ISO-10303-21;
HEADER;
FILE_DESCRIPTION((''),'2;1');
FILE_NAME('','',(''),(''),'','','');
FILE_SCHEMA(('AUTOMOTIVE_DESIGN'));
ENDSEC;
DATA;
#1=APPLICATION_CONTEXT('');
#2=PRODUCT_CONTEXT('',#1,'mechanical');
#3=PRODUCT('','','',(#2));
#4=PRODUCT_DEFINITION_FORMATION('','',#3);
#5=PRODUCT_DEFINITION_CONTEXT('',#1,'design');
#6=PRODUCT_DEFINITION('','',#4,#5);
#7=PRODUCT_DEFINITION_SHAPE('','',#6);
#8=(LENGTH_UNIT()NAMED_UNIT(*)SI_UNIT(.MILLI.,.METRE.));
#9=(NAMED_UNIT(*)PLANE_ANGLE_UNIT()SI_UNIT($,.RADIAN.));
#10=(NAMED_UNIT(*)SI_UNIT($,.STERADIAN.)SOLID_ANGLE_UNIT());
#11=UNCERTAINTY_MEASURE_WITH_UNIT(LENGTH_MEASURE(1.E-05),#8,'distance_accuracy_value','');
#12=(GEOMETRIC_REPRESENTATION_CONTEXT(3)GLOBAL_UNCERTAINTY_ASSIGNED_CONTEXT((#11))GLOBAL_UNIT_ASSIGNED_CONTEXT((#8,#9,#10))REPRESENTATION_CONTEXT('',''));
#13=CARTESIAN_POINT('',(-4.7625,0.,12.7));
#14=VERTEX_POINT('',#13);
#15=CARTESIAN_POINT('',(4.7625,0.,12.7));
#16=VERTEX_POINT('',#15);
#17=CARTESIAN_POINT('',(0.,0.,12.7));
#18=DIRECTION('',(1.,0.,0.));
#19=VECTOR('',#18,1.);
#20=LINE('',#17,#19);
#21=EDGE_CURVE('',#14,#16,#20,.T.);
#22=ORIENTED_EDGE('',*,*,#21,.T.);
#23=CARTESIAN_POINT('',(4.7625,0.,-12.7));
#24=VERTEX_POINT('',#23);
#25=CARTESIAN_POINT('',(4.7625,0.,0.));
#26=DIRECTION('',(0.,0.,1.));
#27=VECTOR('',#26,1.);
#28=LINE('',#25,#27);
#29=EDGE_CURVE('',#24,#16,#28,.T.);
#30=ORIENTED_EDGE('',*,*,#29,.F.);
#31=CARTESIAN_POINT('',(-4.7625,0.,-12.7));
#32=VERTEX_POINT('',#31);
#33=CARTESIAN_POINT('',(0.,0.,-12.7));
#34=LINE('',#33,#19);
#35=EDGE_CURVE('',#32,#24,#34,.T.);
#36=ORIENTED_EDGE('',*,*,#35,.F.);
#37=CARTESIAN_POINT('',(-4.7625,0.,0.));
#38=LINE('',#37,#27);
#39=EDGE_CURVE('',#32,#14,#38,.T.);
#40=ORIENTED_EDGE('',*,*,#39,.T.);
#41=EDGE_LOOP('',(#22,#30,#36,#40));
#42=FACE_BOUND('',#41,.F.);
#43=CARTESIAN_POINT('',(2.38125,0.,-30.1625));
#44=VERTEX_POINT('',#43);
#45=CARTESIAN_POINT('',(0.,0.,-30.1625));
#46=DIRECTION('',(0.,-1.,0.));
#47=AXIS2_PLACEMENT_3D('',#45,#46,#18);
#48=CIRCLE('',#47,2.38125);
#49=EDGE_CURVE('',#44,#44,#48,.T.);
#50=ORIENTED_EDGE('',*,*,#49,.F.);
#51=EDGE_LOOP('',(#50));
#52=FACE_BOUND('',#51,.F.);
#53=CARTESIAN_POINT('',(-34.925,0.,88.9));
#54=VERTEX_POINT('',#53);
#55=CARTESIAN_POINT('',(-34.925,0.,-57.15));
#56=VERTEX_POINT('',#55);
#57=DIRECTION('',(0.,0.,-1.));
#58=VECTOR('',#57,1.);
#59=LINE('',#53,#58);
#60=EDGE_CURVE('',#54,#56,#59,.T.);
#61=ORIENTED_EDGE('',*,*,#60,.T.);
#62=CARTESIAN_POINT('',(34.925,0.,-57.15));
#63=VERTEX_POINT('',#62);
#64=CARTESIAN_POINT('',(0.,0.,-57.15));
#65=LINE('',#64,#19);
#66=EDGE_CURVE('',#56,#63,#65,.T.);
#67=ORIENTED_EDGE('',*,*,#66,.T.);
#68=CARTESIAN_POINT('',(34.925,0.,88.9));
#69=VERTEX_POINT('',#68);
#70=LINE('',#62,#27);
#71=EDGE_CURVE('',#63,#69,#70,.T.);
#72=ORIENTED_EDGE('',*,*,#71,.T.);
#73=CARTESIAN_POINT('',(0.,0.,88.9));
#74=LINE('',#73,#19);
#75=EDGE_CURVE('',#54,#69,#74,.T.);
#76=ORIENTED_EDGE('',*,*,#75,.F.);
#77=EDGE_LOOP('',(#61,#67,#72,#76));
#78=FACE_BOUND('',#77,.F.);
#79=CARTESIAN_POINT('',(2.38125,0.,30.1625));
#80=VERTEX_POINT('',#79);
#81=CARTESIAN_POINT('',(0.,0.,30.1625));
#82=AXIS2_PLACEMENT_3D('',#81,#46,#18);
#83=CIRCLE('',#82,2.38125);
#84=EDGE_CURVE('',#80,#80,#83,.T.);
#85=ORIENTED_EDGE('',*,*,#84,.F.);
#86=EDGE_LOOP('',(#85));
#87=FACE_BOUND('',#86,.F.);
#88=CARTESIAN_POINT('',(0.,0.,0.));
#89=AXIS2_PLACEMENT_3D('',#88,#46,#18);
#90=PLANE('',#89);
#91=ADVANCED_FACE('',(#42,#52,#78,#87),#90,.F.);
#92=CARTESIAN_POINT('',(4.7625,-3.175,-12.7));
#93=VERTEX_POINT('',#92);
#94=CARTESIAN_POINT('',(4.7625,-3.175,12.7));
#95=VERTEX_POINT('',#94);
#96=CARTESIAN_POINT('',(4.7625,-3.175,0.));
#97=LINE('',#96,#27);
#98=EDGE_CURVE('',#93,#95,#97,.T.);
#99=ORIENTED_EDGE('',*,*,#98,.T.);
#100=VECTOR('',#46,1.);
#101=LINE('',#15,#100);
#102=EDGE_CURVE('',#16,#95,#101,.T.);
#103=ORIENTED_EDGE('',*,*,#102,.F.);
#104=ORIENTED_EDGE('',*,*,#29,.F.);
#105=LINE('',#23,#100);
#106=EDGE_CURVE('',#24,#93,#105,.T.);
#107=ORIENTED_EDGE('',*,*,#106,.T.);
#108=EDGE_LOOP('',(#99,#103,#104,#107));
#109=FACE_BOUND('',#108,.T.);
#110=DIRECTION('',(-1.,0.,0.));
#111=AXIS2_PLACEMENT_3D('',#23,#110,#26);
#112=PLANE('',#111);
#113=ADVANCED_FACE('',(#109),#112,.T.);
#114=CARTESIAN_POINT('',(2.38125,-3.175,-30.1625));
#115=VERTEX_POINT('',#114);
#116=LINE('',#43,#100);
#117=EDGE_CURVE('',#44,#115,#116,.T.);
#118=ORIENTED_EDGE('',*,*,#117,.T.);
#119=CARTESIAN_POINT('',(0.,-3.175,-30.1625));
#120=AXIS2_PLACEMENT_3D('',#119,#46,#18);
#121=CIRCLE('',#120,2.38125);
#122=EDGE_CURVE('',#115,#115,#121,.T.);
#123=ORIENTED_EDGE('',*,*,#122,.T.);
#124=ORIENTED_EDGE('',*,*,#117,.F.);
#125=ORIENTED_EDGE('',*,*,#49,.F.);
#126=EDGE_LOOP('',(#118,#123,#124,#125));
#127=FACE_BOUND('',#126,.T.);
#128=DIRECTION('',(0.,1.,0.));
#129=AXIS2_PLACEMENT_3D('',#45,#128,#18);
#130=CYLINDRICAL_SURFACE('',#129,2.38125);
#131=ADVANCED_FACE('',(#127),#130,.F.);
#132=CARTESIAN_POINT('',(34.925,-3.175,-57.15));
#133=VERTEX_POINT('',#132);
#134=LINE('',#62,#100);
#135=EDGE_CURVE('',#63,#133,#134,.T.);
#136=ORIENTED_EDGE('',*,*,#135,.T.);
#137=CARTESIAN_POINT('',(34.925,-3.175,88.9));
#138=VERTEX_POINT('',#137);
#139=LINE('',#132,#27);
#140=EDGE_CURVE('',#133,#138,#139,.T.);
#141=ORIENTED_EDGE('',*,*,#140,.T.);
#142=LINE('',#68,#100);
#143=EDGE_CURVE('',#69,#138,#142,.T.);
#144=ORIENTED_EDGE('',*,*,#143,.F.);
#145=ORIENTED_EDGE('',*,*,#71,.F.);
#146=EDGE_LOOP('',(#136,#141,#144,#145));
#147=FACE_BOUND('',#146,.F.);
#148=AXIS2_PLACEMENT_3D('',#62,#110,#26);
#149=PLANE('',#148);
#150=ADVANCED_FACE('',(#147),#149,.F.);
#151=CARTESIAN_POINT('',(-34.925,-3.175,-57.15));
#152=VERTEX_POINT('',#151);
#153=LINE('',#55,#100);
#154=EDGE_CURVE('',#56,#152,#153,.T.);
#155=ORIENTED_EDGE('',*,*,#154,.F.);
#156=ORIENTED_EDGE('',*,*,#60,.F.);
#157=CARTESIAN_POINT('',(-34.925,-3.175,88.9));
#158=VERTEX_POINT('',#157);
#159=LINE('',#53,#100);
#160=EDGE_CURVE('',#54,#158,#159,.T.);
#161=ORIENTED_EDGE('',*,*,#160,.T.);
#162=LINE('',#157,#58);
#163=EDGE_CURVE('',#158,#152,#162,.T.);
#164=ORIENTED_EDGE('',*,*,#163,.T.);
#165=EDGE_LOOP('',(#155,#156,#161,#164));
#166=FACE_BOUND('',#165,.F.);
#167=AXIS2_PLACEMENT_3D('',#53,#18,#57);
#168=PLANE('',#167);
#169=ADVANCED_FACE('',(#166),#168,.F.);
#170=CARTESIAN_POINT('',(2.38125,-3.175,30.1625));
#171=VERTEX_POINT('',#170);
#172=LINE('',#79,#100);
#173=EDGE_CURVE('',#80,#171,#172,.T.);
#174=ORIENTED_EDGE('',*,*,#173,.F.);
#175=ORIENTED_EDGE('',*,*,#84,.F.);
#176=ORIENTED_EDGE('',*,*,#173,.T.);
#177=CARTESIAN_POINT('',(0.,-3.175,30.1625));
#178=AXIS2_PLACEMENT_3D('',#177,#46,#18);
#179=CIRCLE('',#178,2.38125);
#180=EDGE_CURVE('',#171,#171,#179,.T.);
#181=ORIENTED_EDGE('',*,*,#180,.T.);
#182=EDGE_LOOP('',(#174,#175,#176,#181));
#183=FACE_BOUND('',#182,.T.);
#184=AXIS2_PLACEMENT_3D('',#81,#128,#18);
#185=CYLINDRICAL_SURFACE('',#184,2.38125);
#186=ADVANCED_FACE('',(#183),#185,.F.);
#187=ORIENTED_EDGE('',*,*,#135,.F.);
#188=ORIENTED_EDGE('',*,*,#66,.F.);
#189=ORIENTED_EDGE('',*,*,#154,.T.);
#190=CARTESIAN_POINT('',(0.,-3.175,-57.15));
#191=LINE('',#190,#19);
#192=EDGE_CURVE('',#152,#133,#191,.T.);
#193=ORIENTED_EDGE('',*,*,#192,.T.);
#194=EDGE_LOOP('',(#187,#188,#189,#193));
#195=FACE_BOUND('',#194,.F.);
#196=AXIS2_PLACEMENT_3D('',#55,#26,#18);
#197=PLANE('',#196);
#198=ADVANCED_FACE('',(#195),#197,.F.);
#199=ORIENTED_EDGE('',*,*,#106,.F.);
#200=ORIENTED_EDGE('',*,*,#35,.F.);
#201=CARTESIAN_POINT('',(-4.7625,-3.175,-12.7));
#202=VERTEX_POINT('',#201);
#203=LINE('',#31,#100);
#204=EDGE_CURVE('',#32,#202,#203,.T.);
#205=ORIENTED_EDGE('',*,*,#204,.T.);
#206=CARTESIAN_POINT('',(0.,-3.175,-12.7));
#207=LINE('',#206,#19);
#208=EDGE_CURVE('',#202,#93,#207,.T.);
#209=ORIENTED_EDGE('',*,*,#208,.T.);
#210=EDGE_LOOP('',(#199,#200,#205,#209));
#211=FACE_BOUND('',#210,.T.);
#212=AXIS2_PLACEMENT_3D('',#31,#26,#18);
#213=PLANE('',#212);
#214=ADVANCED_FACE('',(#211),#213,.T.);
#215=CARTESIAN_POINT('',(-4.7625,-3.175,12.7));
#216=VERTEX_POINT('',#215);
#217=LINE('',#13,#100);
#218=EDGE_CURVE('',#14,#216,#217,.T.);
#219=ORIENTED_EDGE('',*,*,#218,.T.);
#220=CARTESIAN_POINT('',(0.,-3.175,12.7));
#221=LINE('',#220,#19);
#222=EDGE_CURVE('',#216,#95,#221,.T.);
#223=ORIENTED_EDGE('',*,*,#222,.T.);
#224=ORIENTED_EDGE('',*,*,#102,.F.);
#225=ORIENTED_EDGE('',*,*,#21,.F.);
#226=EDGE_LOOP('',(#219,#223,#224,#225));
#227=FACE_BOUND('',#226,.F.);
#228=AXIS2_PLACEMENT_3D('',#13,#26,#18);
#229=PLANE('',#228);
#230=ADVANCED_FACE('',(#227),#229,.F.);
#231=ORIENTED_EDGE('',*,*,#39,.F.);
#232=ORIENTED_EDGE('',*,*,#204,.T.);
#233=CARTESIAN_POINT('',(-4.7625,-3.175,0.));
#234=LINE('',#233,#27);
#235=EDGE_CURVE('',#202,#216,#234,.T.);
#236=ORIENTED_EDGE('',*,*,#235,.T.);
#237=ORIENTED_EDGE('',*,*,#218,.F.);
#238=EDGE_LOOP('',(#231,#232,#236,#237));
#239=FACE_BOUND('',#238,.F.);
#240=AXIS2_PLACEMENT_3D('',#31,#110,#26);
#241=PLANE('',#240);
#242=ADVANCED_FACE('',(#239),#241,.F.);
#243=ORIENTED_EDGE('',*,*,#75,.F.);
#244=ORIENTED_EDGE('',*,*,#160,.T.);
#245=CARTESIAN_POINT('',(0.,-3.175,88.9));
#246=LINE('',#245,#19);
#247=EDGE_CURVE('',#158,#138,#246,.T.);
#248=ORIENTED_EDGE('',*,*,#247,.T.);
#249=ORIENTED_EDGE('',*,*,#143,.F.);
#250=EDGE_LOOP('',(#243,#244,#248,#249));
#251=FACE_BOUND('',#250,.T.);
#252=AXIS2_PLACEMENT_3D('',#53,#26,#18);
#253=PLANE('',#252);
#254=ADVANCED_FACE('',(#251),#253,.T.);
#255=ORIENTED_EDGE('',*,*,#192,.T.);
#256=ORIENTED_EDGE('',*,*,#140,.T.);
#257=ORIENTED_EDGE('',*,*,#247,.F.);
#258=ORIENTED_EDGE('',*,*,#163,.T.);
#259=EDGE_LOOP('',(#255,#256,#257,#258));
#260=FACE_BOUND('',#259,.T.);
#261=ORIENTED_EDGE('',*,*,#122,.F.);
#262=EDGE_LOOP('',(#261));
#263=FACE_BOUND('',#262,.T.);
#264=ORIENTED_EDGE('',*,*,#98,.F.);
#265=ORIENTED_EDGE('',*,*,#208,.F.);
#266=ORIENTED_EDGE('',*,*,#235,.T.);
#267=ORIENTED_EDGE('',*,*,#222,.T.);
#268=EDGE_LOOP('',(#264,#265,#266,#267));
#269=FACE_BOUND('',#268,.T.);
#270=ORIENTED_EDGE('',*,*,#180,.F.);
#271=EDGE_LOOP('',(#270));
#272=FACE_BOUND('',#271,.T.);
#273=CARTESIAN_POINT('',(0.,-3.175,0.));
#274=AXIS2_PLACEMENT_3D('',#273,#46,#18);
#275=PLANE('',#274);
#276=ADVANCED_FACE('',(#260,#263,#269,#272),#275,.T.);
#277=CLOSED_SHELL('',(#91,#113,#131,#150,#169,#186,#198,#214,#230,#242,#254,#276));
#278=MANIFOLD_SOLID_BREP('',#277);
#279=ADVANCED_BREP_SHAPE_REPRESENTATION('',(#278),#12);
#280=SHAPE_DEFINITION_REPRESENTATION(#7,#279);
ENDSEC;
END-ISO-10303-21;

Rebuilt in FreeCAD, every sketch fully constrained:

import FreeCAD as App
import Part
import Sketcher
from FreeCAD import Vector
Q = App.Units.Quantity

doc = App.newDocument("Part")
params = doc.addObject("Spreadsheet::Sheet", "Params")
for row, (alias, value) in enumerate([
    ("sketch1_height", "1 in"),
    ("sketch1_diameter", "0.1875 in"),
    ("sketch1_width", "2.75 in"),
    ("sketch1_height2", "5.75 in"),
    ("sketch1_width2", "0.375 in"),
    ("pad1_length", "0.125 in"),
], start=1):
    params.set(f"A{row}", alias)
    params.set(f"B{row}", "=" + value)
    params.setAlias(f"B{row}", alias)

body = doc.addObject("PartDesign::Body", "Body")

sketch1 = body.newObject("Sketcher::SketchObject", "Sketch")
sketch1.AttachmentSupport = (doc.getObject("XZ_Plane"), [""])
sketch1.MapMode = "FlatFace"
sketch1.addGeometry([
    Part.LineSegment(Vector(-34.9, -57.1, 0), Vector(34.9, -57.1, 0)),
    Part.LineSegment(Vector(34.9, -57.1, 0), Vector(34.9, 88.9, 0)),
    Part.LineSegment(Vector(34.9, 88.9, 0), Vector(-34.9, 88.9, 0)),
    Part.LineSegment(Vector(-34.9, 88.9, 0), Vector(-34.9, -57.1, 0)),
    Part.Circle(Vector(0, -30.2, 0), Vector(0, 0, 1), 2.4),
    Part.LineSegment(Vector(4.8, -12.7, 0), Vector(-4.8, -12.7, 0)),
    Part.LineSegment(Vector(-4.8, -12.7, 0), Vector(-4.8, 12.7, 0)),
    Part.LineSegment(Vector(-4.8, 12.7, 0), Vector(4.8, 12.7, 0)),
    Part.LineSegment(Vector(4.8, 12.7, 0), Vector(4.8, -12.7, 0)),
    Part.Circle(Vector(0, 30.2, 0), Vector(0, 0, 1), 2.4),
], False)
sketch1.addConstraint([
    Sketcher.Constraint("Coincident", 0, 2, 1, 1),
    Sketcher.Constraint("Coincident", 1, 2, 2, 1),
    Sketcher.Constraint("Coincident", 2, 2, 3, 1),
    Sketcher.Constraint("Coincident", 3, 2, 0, 1),
    Sketcher.Constraint("Coincident", 5, 2, 6, 1),
    Sketcher.Constraint("Coincident", 6, 2, 7, 1),
    Sketcher.Constraint("Coincident", 7, 2, 8, 1),
    Sketcher.Constraint("Coincident", 8, 2, 5, 1),
    Sketcher.Constraint("Horizontal", 0),
    Sketcher.Constraint("Vertical", 1),
    Sketcher.Constraint("Horizontal", 2),
    Sketcher.Constraint("Vertical", 3),
    Sketcher.Constraint("Horizontal", 5),
    Sketcher.Constraint("Vertical", 6),
    Sketcher.Constraint("Horizontal", 7),
    Sketcher.Constraint("Vertical", 8),
    Sketcher.Constraint("Equal", 4, 9),
    Sketcher.Constraint("Symmetric", 4, 3, 9, 3, -1, 1),
    Sketcher.Constraint("Symmetric", 5, 2, 7, 2, -1, 1),
    Sketcher.Constraint("PointOnObject", 4, 3, -2),
    Sketcher.Constraint("DistanceY", 6, 1, 6, 2, Q("1 in")),
    Sketcher.Constraint("Diameter", 4, Q("0.1875 in")),
    Sketcher.Constraint("DistanceY", 5, 2, 2, 2, Q("4 in")),
    Sketcher.Constraint("DistanceX", 0, 1, 0, 2, Q("2.75 in")),
    Sketcher.Constraint("DistanceY", 1, 1, 1, 2, Q("5.75 in")),
    Sketcher.Constraint("DistanceX", 5, 2, 5, 1, Q("0.375 in")),
    Sketcher.Constraint("DistanceY", 4, 3, -1, 1, Q("1.1875 in")),
    Sketcher.Constraint("DistanceX", -1, 1, 0, 2, Q("1.375 in")),
])
sketch1.setExpression("Constraints[20]", "Params.sketch1_height")
sketch1.setExpression("Constraints[21]", "Params.sketch1_diameter")
sketch1.setExpression("Constraints[23]", "Params.sketch1_width")
sketch1.setExpression("Constraints[24]", "Params.sketch1_height2")
sketch1.setExpression("Constraints[25]", "Params.sketch1_width2")
pad1 = body.newObject("PartDesign::Pad", "Pad")
pad1.Profile = sketch1
pad1.setExpression("Length", "Params.pad1_length")

doc.recompute()
